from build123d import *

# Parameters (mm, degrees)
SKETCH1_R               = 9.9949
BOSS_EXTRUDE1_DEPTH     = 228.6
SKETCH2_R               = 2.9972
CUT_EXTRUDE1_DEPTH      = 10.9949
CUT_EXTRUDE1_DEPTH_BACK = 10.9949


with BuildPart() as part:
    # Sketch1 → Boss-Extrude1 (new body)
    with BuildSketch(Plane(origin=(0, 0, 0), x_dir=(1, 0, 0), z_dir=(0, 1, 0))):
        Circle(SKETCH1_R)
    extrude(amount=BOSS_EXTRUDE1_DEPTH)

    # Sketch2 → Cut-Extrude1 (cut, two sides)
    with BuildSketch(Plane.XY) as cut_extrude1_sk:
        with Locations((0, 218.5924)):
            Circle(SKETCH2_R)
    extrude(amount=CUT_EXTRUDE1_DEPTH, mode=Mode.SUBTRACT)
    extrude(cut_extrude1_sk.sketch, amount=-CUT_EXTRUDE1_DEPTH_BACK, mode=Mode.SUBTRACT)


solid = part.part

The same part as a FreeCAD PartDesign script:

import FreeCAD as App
import Part
import Sketcher
from FreeCAD import Vector
Q = App.Units.Quantity

doc = App.newDocument("Part")
params = doc.addObject("Spreadsheet::Sheet", "Params")
for row, (alias, value) in enumerate([
    ("sketch1_diameter", "0.787 in"),
    ("pad1_length", "9 in"),
    ("sketch2_diameter", "0.236 in"),
], start=1):
    params.set(f"A{row}", alias)
    params.set(f"B{row}", "=" + value)
    params.setAlias(f"B{row}", alias)

body = doc.addObject("PartDesign::Body", "Body")

# Sketch on XZ plane
sketch1 = body.newObject("Sketcher::SketchObject", "Sketch")
sketch1.AttachmentSupport = (doc.getObject("XZ_Plane"), [""])
sketch1.MapMode = "FlatFace"
sketch1.addGeometry(Part.Circle(Vector(0, 0, 0), Vector(0, 0, 1), 10), False)
sketch1.addConstraint([
    Sketcher.Constraint("Coincident", 0, 3, -1, 1),
    Sketcher.Constraint("Diameter", 0, Q("0.787 in")),
])
sketch1.setExpression("Constraints[1]", "Params.sketch1_diameter")
pad1 = body.newObject("PartDesign::Pad", "Pad")
pad1.Profile = sketch1
pad1.setExpression("Length", "Params.pad1_length")
pad1.Reversed = True

# Sketch on XY plane
sketch2 = body.newObject("Sketcher::SketchObject", "Sketch001")
sketch2.AttachmentSupport = (doc.getObject("XY_Plane"), [""])
sketch2.MapMode = "FlatFace"
sketch2.addGeometry(Part.Circle(Vector(0, 218.6, 0), Vector(0, 0, 1), 3), False)
sketch2.addConstraint([
    Sketcher.Constraint("PointOnObject", 0, 3, -2),
    Sketcher.Constraint("Diameter", 0, Q("0.236 in")),
    Sketcher.Constraint("DistanceY", -1, 1, 0, 3, Q("8.606 in")),
])
sketch2.setExpression("Constraints[1]", "Params.sketch2_diameter")
pocket1 = body.newObject("PartDesign::Pocket", "Pocket")
pocket1.Profile = sketch2
pocket1.Type = "ThroughAll"
pocket1.Midplane = True

doc.recompute()
